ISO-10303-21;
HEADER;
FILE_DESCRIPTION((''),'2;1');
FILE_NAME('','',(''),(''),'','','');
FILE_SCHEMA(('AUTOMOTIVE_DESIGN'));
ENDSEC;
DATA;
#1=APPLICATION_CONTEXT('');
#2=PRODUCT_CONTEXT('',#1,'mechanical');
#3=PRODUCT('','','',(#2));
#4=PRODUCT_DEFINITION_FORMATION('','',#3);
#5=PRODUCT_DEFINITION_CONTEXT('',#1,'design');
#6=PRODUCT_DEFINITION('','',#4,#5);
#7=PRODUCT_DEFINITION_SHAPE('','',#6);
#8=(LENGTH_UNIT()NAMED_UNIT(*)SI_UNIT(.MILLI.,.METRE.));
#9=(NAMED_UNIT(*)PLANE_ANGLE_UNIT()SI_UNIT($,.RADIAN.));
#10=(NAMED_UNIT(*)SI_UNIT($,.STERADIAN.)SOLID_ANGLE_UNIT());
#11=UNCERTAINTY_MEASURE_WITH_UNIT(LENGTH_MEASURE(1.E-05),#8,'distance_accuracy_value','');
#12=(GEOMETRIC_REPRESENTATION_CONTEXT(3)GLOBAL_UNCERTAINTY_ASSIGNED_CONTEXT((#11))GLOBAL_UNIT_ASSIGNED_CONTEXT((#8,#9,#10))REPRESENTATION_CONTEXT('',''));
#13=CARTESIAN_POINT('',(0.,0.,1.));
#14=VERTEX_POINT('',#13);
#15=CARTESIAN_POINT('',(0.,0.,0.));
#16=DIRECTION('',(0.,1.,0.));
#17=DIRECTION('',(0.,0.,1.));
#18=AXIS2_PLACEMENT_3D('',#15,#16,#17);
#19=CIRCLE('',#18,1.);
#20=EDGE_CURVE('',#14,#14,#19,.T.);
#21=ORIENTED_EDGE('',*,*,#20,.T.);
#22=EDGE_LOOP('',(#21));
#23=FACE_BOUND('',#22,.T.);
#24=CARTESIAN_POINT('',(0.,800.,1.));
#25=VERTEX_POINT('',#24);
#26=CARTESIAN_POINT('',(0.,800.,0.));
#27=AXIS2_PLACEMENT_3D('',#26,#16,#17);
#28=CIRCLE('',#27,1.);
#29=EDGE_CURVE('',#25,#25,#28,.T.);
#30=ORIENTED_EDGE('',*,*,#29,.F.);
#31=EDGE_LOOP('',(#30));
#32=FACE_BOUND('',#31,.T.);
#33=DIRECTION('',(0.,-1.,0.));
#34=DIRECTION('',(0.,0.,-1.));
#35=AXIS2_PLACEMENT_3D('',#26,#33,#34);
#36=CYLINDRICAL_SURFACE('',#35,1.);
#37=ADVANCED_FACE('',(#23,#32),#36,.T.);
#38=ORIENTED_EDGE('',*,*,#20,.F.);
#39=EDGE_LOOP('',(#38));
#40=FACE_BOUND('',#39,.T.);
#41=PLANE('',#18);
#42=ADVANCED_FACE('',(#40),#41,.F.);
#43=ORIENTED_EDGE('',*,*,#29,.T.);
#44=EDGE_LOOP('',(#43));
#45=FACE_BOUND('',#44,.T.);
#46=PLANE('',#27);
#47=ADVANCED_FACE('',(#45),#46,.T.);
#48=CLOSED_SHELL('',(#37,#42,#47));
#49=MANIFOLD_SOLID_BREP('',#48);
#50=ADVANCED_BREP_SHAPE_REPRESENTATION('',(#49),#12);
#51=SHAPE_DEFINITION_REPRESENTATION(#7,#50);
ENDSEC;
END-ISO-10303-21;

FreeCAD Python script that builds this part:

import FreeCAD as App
import Part
import Sketcher

V = App.Vector
Q = App.Units.Quantity

doc = App.newDocument("Part")
body = doc.addObject("PartDesign::Body", "Body")

# Sketch on XZ plane
sketch1 = body.newObject("Sketcher::SketchObject", "Sketch")
sketch1.AttachmentSupport = (doc.getObject("XZ_Plane"), [""])
sketch1.MapMode = "FlatFace"
sketch1.addGeometry(Part.Circle(V(0, 0, 0), V(0, 0, 1), 1), False)
sketch1.addConstraint(Sketcher.Constraint("Coincident", 0, 3, -1, 1))
sketch1.addConstraint(Sketcher.Constraint("Diameter", 0, Q("2 mm")))
pad1 = body.newObject("PartDesign::Pad", "Pad")
pad1.Profile = sketch1
pad1.Length = 800
pad1.Reversed = True

doc.recompute()
